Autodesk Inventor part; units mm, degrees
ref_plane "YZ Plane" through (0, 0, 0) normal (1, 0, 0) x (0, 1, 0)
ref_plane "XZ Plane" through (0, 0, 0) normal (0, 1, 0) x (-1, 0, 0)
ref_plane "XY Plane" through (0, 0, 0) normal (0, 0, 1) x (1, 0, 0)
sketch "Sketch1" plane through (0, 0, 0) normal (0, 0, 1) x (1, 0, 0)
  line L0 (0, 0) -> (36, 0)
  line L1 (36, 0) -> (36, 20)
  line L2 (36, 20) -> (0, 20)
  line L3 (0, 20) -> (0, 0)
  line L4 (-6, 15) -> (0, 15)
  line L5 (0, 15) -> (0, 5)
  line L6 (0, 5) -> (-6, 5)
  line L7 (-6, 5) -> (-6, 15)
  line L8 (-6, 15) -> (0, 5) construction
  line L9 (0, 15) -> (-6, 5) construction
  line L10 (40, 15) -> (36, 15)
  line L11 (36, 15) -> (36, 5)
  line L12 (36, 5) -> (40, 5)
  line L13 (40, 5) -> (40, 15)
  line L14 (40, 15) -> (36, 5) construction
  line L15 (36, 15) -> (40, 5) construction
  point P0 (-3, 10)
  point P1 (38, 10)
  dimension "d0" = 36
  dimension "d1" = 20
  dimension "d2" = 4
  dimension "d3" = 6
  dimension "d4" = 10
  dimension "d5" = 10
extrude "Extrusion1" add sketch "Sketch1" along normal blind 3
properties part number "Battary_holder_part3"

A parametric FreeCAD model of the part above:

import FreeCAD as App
import Part
import Sketcher
from FreeCAD import Vector

doc = App.newDocument("Part")
body = doc.addObject("PartDesign::Body", "Body")

# Sketch on XY plane
sketch1 = body.newObject("Sketcher::SketchObject", "Sketch")
sketch1.AttachmentSupport = (doc.getObject("XY_Plane"), [""])
sketch1.MapMode = "FlatFace"
sketch1.addGeometry(Part.LineSegment(Vector(0, 5, 0), Vector(0, 0, 0)), False)
sketch1.addGeometry(Part.LineSegment(Vector(0, 0, 0), Vector(36, 0, 0)), False)
sketch1.addGeometry(Part.LineSegment(Vector(36, 0, 0), Vector(36, 5, 0)), False)
sketch1.addGeometry(Part.LineSegment(Vector(36, 5, 0), Vector(40, 5, 0)), False)
sketch1.addGeometry(Part.LineSegment(Vector(40, 5, 0), Vector(40, 15, 0)), False)
sketch1.addGeometry(Part.LineSegment(Vector(40, 15, 0), Vector(36, 15, 0)), False)
sketch1.addGeometry(Part.LineSegment(Vector(36, 15, 0), Vector(36, 20, 0)), False)
sketch1.addGeometry(Part.LineSegment(Vector(36, 20, 0), Vector(0, 20, 0)), False)
sketch1.addGeometry(Part.LineSegment(Vector(0, 20, 0), Vector(0, 15, 0)), False)
sketch1.addGeometry(Part.LineSegment(Vector(0, 15, 0), Vector(-6, 15, 0)), False)
sketch1.addGeometry(Part.LineSegment(Vector(-6, 15, 0), Vector(-6, 5, 0)), False)
sketch1.addGeometry(Part.LineSegment(Vector(-6, 5, 0), Vector(0, 5, 0)), False)
sketch1.addConstraint(Sketcher.Constraint("Coincident", 0, 2, 1, 1))
sketch1.addConstraint(Sketcher.Constraint("Coincident", 1, 2, 2, 1))
sketch1.addConstraint(Sketcher.Constraint("Coincident", 2, 2, 3, 1))
sketch1.addConstraint(Sketcher.Constraint("Coincident", 3, 2, 4, 1))
sketch1.addConstraint(Sketcher.Constraint("Coincident", 4, 2, 5, 1))
sketch1.addConstraint(Sketcher.Constraint("Coincident", 5, 2, 6, 1))
sketch1.addConstraint(Sketcher.Constraint("Coincident", 6, 2, 7, 1))
sketch1.addConstraint(Sketcher.Constraint("Coincident", 7, 2, 8, 1))
sketch1.addConstraint(Sketcher.Constraint("Coincident", 8, 2, 9, 1))
sketch1.addConstraint(Sketcher.Constraint("Coincident", 9, 2, 10, 1))
sketch1.addConstraint(Sketcher.Constraint("Coincident", 10, 2, 11, 1))
sketch1.addConstraint(Sketcher.Constraint("Coincident", 11, 2, 0, 1))
sketch1.addConstraint(Sketcher.Constraint("Vertical", 0))
sketch1.addConstraint(Sketcher.Constraint("Horizontal", 1))
sketch1.addConstraint(Sketcher.Constraint("Vertical", 2))
sketch1.addConstraint(Sketcher.Constraint("Horizontal", 3))
sketch1.addConstraint(Sketcher.Constraint("Vertical", 4))
sketch1.addConstraint(Sketcher.Constraint("Horizontal", 5))
sketch1.addConstraint(Sketcher.Constraint("Vertical", 6))
sketch1.addConstraint(Sketcher.Constraint("Horizontal", 7))
sketch1.addConstraint(Sketcher.Constraint("Vertical", 8))
sketch1.addConstraint(Sketcher.Constraint("Horizontal", 9))
sketch1.addConstraint(Sketcher.Constraint("Vertical", 10))
sketch1.addConstraint(Sketcher.Constraint("Horizontal", 11))
sketch1.addConstraint(Sketcher.Constraint("Coincident", 0, 2, -1, 1))
sketch1.addConstraint(Sketcher.Constraint("PointOnObject", 7, 2, -2))
sketch1.addConstraint(Sketcher.Constraint("Horizontal", 5, 2, 8, 2))
sketch1.addConstraint(Sketcher.Constraint("Horizontal", 3, 2, 10, 2))
sketch1.addConstraint(Sketcher.Constraint("Vertical", 2, 2, 5, 2))
sketch1.addConstraint(Sketcher.Constraint("Equal", 2, 6))
sketch1.addConstraint(Sketcher.Constraint("DistanceX", 1, 1, 1, 2, 36.0))
sketch1.addConstraint(Sketcher.Constraint("DistanceX", 3, 1, 3, 2, 4.0))
sketch1.addConstraint(Sketcher.Constraint("DistanceX", 9, 2, 9, 1, 6.0))
sketch1.addConstraint(Sketcher.Constraint("DistanceY", 4, 1, 4, 2, 10.0))
sketch1.addConstraint(Sketcher.Constraint("DistanceY", -1, 1, 6, 2, 20.0))
pad1 = body.newObject("PartDesign::Pad", "Pad")
pad1.Profile = sketch1
pad1.Length = 3

doc.recompute()
